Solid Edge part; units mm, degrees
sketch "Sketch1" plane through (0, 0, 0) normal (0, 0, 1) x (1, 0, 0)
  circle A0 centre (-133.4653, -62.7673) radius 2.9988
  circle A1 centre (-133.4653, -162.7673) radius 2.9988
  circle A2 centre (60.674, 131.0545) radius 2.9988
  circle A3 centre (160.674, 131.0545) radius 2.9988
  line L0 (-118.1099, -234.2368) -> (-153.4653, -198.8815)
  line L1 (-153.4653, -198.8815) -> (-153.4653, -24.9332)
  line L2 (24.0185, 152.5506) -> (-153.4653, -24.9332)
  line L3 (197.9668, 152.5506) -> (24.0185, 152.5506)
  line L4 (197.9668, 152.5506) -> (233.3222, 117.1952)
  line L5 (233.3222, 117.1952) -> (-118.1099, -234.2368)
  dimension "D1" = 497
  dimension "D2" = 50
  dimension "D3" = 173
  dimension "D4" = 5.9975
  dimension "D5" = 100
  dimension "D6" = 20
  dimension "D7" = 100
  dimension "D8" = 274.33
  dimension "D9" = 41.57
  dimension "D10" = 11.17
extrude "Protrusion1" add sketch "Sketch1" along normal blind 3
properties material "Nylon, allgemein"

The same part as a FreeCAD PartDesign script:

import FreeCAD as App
import Part
import Sketcher

V = App.Vector
Q = App.Units.Quantity

doc = App.newDocument("Part")
body = doc.addObject("PartDesign::Body", "Body")

sketch1 = doc.addObject("Sketcher::SketchObject", "Sketch")
body.addObject(sketch1)
sketch1.AttachmentSupport = (doc.XY_Plane, [""])
sketch1.MapMode = "FlatFace"
sketch1.addGeometry(Part.LineSegment(V(-153.5, -198.9, 0), V(-118.1, -234.2, 0)), False)
sketch1.addGeometry(Part.LineSegment(V(-118.1, -234.2, 0), V(233.3, 117.2, 0)), False)
sketch1.addGeometry(Part.LineSegment(V(233.3, 117.2, 0), V(198, 152.6, 0)), False)
sketch1.addGeometry(Part.LineSegment(V(198, 152.6, 0), V(24, 152.6, 0)), False)
sketch1.addGeometry(Part.LineSegment(V(24, 152.6, 0), V(-153.5, -24.9, 0)), False)
sketch1.addGeometry(Part.LineSegment(V(-153.5, -24.9, 0), V(-153.5, -198.9, 0)), False)
sketch1.addGeometry(Part.Circle(V(-133.5, -162.8, 0), V(0, 0, 1), 3), False)
sketch1.addGeometry(Part.Circle(V(-133.5, -62.8, 0), V(0, 0, 1), 3), False)
sketch1.addGeometry(Part.Circle(V(60.7, 131.1, 0), V(0, 0, 1), 3), False)
sketch1.addGeometry(Part.Circle(V(160.7, 131.1, 0), V(0, 0, 1), 3), False)
sketch1.addConstraint(Sketcher.Constraint("Coincident", 0, 2, 1, 1))
sketch1.addConstraint(Sketcher.Constraint("Coincident", 1, 2, 2, 1))
sketch1.addConstraint(Sketcher.Constraint("Coincident", 2, 2, 3, 1))
sketch1.addConstraint(Sketcher.Constraint("Coincident", 3, 2, 4, 1))
sketch1.addConstraint(Sketcher.Constraint("Coincident", 4, 2, 5, 1))
sketch1.addConstraint(Sketcher.Constraint("Coincident", 5, 2, 0, 1))
sketch1.addConstraint(Sketcher.Constraint("Horizontal", 3))
sketch1.addConstraint(Sketcher.Constraint("Vertical", 5))
sketch1.addConstraint(Sketcher.Constraint("Equal", 6, 7))
sketch1.addConstraint(Sketcher.Constraint("Equal", 7, 8))
sketch1.addConstraint(Sketcher.Constraint("Equal", 8, 9))
sketch1.addConstraint(Sketcher.Constraint("Perpendicular", 0, 1))
sketch1.addConstraint(Sketcher.Constraint("Perpendicular", 1, 2))
sketch1.addConstraint(Sketcher.Constraint("Perpendicular", 2, 4))
sketch1.addConstraint(Sketcher.Constraint("Horizontal", 8, 3, 9, 3))
sketch1.addConstraint(Sketcher.Constraint("Vertical", 6, 3, 7, 3))
sketch1.addConstraint(Sketcher.Constraint("Equal", 3, 5))
sketch1.addConstraint(Sketcher.Constraint("Equal", 0, 2))
sketch1.addConstraint(Sketcher.Constraint("Distance", 0, Q("50 mm")))
sketch1.addConstraint(Sketcher.Constraint("Distance", 1, Q("497 mm")))
sketch1.addConstraint(Sketcher.Constraint("Distance", 4, Q("251 mm")))
sketch1.addConstraint(Sketcher.Constraint("DistanceX", -1, 1, 8, 3, Q("60.674 mm")))
sketch1.addConstraint(Sketcher.Constraint("DistanceY", 6, 3, 7, 3, Q("100 mm")))
sketch1.addConstraint(Sketcher.Constraint("DistanceX", 8, 3, 9, 3, Q("100 mm")))
sketch1.addConstraint(Sketcher.Constraint("DistanceX", 4, 2, 7, 3, Q("20 mm")))
sketch1.addConstraint(Sketcher.Constraint("Diameter", 6, Q("5.9976 mm")))
sketch1.addConstraint(Sketcher.Constraint("DistanceX", 6, 3, -1, 1, Q("133.4653 mm")))
sketch1.addConstraint(Sketcher.Constraint("DistanceY", 9, 3, 2, 2, Q("21.496 mm")))
sketch1.addConstraint(Sketcher.Constraint("DistanceY", 7, 3, 2, 2, Q("215.318 mm")))
sketch1.addConstraint(Sketcher.Constraint("DistanceY", 6, 3, -1, 1, Q("162.7673 mm")))
pad1 = doc.addObject("PartDesign::Pad", "Pad")
body.addObject(pad1)
pad1.Profile = sketch1
pad1.Length = 3

doc.recompute()
